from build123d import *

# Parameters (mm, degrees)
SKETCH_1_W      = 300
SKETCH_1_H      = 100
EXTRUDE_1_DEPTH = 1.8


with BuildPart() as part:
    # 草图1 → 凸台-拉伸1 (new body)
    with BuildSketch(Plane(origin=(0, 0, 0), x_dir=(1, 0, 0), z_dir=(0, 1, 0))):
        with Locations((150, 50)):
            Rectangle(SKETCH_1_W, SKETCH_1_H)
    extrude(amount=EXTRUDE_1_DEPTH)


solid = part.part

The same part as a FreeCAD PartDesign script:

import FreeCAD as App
import Part
import Sketcher

doc = App.newDocument("Part")
params = doc.addObject("Spreadsheet::Sheet", "Params")
for row, (alias, value) in enumerate([
    ("sketch1_width", "300 mm"),
    ("sketch1_height", "100 mm"),
    ("pad1_length", "1.8 mm"),
], start=1):
    params.set(f"A{row}", alias)
    params.set(f"B{row}", "=" + value)
    params.setAlias(f"B{row}", alias)

body = doc.addObject("PartDesign::Body", "Body")

sketch1 = body.newObject("Sketcher::SketchObject", "Sketch")
sketch1.AttachmentSupport = (doc.getObject("XZ_Plane"), [""])
sketch1.MapMode = "FlatFace"
sketch1.addGeometry([
    Part.LineSegment(App.Vector(0, -100, 0), App.Vector(0, 0, 0)),
    Part.LineSegment(App.Vector(0, 0, 0), App.Vector(300, 0, 0)),
    Part.LineSegment(App.Vector(300, 0, 0), App.Vector(300, -100, 0)),
    Part.LineSegment(App.Vector(300, -100, 0), App.Vector(0, -100, 0)),
], False)
sketch1.addConstraint([
    Sketcher.Constraint("Coincident", 0, 2, 1, 1),
    Sketcher.Constraint("Coincident", 1, 2, 2, 1),
    Sketcher.Constraint("Coincident", 2, 2, 3, 1),
    Sketcher.Constraint("Coincident", 3, 2, 0, 1),
    Sketcher.Constraint("Vertical", 0),
    Sketcher.Constraint("Horizontal", 1),
    Sketcher.Constraint("Vertical", 2),
    Sketcher.Constraint("Horizontal", 3),
    Sketcher.Constraint("Coincident", 0, 2, -1, 1),
    Sketcher.Constraint("DistanceX", 1, 1, 1, 2, 300.0),
    Sketcher.Constraint("DistanceY", 0, 1, 0, 2, 100.0),
])
sketch1.setExpression("Constraints[9]", "Params.sketch1_width")
sketch1.setExpression("Constraints[10]", "Params.sketch1_height")
pad1 = body.newObject("PartDesign::Pad", "Pad")
pad1.Profile = sketch1
pad1.setExpression("Length", "Params.pad1_length")
pad1.Reversed = True

doc.recompute()
